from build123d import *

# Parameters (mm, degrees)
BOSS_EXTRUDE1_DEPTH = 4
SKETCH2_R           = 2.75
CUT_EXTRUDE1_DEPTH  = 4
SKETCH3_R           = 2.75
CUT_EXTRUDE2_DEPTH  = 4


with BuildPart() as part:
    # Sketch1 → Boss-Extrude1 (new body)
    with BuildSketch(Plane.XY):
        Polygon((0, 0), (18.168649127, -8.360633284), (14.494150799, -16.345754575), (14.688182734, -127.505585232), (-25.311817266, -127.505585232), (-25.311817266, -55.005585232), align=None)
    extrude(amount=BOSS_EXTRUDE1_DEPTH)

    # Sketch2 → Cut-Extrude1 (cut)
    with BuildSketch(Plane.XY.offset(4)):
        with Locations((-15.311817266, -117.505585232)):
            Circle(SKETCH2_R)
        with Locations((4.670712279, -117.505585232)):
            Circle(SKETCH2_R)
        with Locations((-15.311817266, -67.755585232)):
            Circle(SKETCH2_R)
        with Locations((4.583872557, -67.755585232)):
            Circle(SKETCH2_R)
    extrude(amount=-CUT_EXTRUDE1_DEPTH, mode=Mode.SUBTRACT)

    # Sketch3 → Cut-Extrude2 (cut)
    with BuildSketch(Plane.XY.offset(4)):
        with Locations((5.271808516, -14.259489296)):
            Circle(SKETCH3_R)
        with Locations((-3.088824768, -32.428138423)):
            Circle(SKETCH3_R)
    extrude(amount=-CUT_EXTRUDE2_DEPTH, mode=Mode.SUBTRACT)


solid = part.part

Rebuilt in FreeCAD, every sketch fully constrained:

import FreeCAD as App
import Part
import Sketcher
from FreeCAD import Vector
Q = App.Units.Quantity


def add_polygon(sketch, points):
    """Adds a closed chain of lines whose ends are joined by coincident constraints."""
    first, n = sketch.GeometryCount, len(points)
    for a, b in zip(points, points[1:] + points[:1]):
        sketch.addGeometry(Part.LineSegment(App.Vector(*a, 0), App.Vector(*b, 0)), False)
    for i in range(n):
        sketch.addConstraint(Sketcher.Constraint("Coincident", first + i, 2, first + (i + 1) % n, 1))

doc = App.newDocument("Part")
body = doc.addObject("PartDesign::Body", "Body")

# Sketch on XY plane
sketch1 = body.newObject("Sketcher::SketchObject", "Sketch")
sketch1.AttachmentSupport = (doc.getObject("XY_Plane"), [""])
sketch1.MapMode = "FlatFace"
add_polygon(sketch1, [(18, -8), (0, 0), (-25, -55), (-25, -128), (15, -128), (14, -16)])  # lines 0-5
sketch1.addConstraint([
    Sketcher.Constraint("Vertical", 2),
    Sketcher.Constraint("Horizontal", 3),
    Sketcher.Constraint("Coincident", 0, 2, -1, 1),
    Sketcher.Constraint("Perpendicular", 0, 1),
    Sketcher.Constraint("Parallel", 1, 5),
    Sketcher.Constraint("DistanceX", 3, 1, 3, 2, Q("40 mm")),
    Sketcher.Constraint("Distance", 0, Q("20 mm")),
    Sketcher.Constraint("DistanceY", 2, 2, 2, 1, Q("72.5 mm")),
    Sketcher.Constraint("Angle", 4, Q("90.100011 deg")),
    Sketcher.Constraint("Distance", 1, Q("60.55 mm")),
    Sketcher.Constraint("Distance", 4, Q("111.16 mm")),
])
pad1 = body.newObject("PartDesign::Pad", "Pad")
pad1.Profile = sketch1
pad1.Length = 4

# Sketch on XY plane
sketch2 = body.newObject("Sketcher::SketchObject", "Sketch001")
sketch2.AttachmentSupport = (doc.getObject("XY_Plane"), [""])
sketch2.MapMode = "FlatFace"
sketch2.AttachmentOffset = App.Placement(Vector(0, 0, 4), App.Rotation())
sketch2.addGeometry([
    Part.Circle(Vector(-15.3, -117.5, 0), Vector(0, 0, 1), 2.8),
    Part.Circle(Vector(4.7, -117.5, 0), Vector(0, 0, 1), 2.8),
    Part.Circle(Vector(-15.3, -67.8, 0), Vector(0, 0, 1), 2.8),
    Part.Circle(Vector(4.6, -67.8, 0), Vector(0, 0, 1), 2.8),
], False)
sketch2.addConstraint([
    Sketcher.Constraint("Equal", 0, 1),
    Sketcher.Constraint("Equal", 1, 2),
    Sketcher.Constraint("Equal", 2, 3),
    Sketcher.Constraint("Horizontal", 0, 3, 1, 3),
    Sketcher.Constraint("Horizontal", 2, 3, 3, 3),
    Sketcher.Constraint("Vertical", 0, 3, 2, 3),
    Sketcher.Constraint("Diameter", 0, Q("5.5 mm")),
    Sketcher.Constraint("DistanceY", 0, 3, 2, 3, Q("49.75 mm")),
    Sketcher.Constraint("DistanceX", 0, 3, 1, 3, Q("19.98253 mm")),
    Sketcher.Constraint("DistanceX", 2, 3, 3, 3, Q("19.89569 mm")),
    Sketcher.Constraint("DistanceX", 0, 3, -1, 1, Q("15.311817 mm")),
    Sketcher.Constraint("DistanceY", 0, 3, -1, 1, Q("117.505585 mm")),
])
pocket1 = body.newObject("PartDesign::Pocket", "Pocket")
pocket1.Profile = sketch2
pocket1.Length = 4

# Sketch on XY plane
sketch3 = body.newObject("Sketcher::SketchObject", "Sketch002")
sketch3.AttachmentSupport = (doc.getObject("XY_Plane"), [""])
sketch3.MapMode = "FlatFace"
sketch3.AttachmentOffset = App.Placement(Vector(0, 0, 4), App.Rotation())
sketch3.addGeometry([
    Part.Circle(Vector(5.3, -14.3, 0), Vector(0, 0, 1), 2.8),
    Part.Circle(Vector(-3.1, -32.4, 0), Vector(0, 0, 1), 2.8),
], False)
sketch3.addConstraint([
    Sketcher.Constraint("Equal", 0, 1),
    Sketcher.Constraint("Diameter", 0, Q("5.5 mm")),
    Sketcher.Constraint("DistanceX", -1, 1, 0, 3, Q("5.271809 mm")),
    Sketcher.Constraint("DistanceY", 0, 3, -1, 1, Q("14.259489 mm")),
    Sketcher.Constraint("DistanceY", 1, 3, -1, 1, Q("32.428138 mm")),
    Sketcher.Constraint("DistanceX", 1, 3, -1, 1, Q("3.088825 mm")),
])
pocket2 = body.newObject("PartDesign::Pocket", "Pocket001")
pocket2.Profile = sketch3
pocket2.Length = 4

doc.recompute()
